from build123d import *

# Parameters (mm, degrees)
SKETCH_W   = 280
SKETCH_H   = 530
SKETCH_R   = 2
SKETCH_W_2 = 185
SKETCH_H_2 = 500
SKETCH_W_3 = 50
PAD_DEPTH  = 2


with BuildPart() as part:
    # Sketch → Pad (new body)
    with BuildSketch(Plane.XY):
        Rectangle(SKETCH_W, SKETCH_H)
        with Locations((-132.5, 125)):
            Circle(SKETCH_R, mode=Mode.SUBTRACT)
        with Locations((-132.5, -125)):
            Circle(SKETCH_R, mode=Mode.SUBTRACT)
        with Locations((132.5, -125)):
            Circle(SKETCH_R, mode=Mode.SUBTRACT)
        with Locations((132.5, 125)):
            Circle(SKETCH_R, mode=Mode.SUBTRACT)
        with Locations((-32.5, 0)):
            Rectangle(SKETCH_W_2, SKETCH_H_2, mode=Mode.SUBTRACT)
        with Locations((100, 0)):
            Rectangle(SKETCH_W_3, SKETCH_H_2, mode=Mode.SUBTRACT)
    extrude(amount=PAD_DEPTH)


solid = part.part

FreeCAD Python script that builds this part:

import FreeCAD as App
import Part
import Sketcher
from FreeCAD import Vector


def add_polygon(sketch, points):
    """Adds a closed chain of lines whose ends are joined by coincident constraints."""
    first, n = sketch.GeometryCount, len(points)
    for a, b in zip(points, points[1:] + points[:1]):
        sketch.addGeometry(Part.LineSegment(App.Vector(*a, 0), App.Vector(*b, 0)), False)
    for i in range(n):
        sketch.addConstraint(Sketcher.Constraint("Coincident", first + i, 2, first + (i + 1) % n, 1))

doc = App.newDocument("Part")
body = doc.addObject("PartDesign::Body", "Body")

# Sketch on XY plane
sketch1 = body.newObject("Sketcher::SketchObject", "Sketch")
sketch1.AttachmentSupport = (doc.getObject("XY_Plane"), [""])
sketch1.MapMode = "FlatFace"
add_polygon(sketch1, [(-140, 265), (-140, -265), (140, -265), (140, 265)])  # lines 0-3
sketch1.addGeometry(Part.Circle(Vector(-132.5, -125, 0), Vector(0, 0, 1), 2), False)  # 4
sketch1.addGeometry(Part.Circle(Vector(132.5, -125, 0), Vector(0, 0, 1), 2), False)  # 5
add_polygon(sketch1, [(60, -250), (-125, -250), (-125, 250), (60, 250)])  # lines 6-9
sketch1.addGeometry(Part.Circle(Vector(-132.5, 125, 0), Vector(0, 0, 1), 2), False)  # 10
add_polygon(sketch1, [(125, -250), (75, -250), (75, 250), (125, 250)])  # lines 11-14
sketch1.addGeometry(Part.Circle(Vector(132.5, 125, 0), Vector(0, 0, 1), 2), False)  # 15
sketch1.addConstraint(Sketcher.Constraint("Vertical", 0))
sketch1.addConstraint(Sketcher.Constraint("Horizontal", 1))
sketch1.addConstraint(Sketcher.Constraint("Vertical", 2))
sketch1.addConstraint(Sketcher.Constraint("Horizontal", 3))
sketch1.addConstraint(Sketcher.Constraint("Horizontal", 6))
sketch1.addConstraint(Sketcher.Constraint("Vertical", 7))
sketch1.addConstraint(Sketcher.Constraint("Horizontal", 8))
sketch1.addConstraint(Sketcher.Constraint("Vertical", 9))
sketch1.addConstraint(Sketcher.Constraint("Horizontal", 11))
sketch1.addConstraint(Sketcher.Constraint("Vertical", 12))
sketch1.addConstraint(Sketcher.Constraint("Horizontal", 13))
sketch1.addConstraint(Sketcher.Constraint("Vertical", 14))
sketch1.addConstraint(Sketcher.Constraint("Equal", 4, 5))
sketch1.addConstraint(Sketcher.Constraint("Equal", 5, 10))
sketch1.addConstraint(Sketcher.Constraint("Equal", 10, 15))
sketch1.addConstraint(Sketcher.Constraint("Symmetric", 5, 3, 10, 3, -1, 1))
sketch1.addConstraint(Sketcher.Constraint("Symmetric", 4, 3, 15, 3, -1, 1))
sketch1.addConstraint(Sketcher.Constraint("Symmetric", 0, 2, 2, 2, -1, 1))
sketch1.addConstraint(Sketcher.Constraint("Symmetric", 6, 2, 13, 2, -1, 1))
sketch1.addConstraint(Sketcher.Constraint("Symmetric", 4, 3, 5, 3, -2))
sketch1.addConstraint(Sketcher.Constraint("Horizontal", 9, 2, 11, 2))
sketch1.addConstraint(Sketcher.Constraint("Horizontal", 8, 2, 12, 2))
sketch1.addConstraint(Sketcher.Constraint("Diameter", 4, 4.0))
sketch1.addConstraint(Sketcher.Constraint("DistanceX", 1, 1, 1, 2, 280.0))
sketch1.addConstraint(Sketcher.Constraint("DistanceX", 6, 2, 6, 1, 185.0))
sketch1.addConstraint(Sketcher.Constraint("DistanceX", 11, 2, 11, 1, 50.0))
sketch1.addConstraint(Sketcher.Constraint("DistanceY", 0, 2, 0, 1, 530.0))
sketch1.addConstraint(Sketcher.Constraint("DistanceY", 7, 1, 7, 2, 500.0))
sketch1.addConstraint(Sketcher.Constraint("DistanceY", 4, 3, -1, 1, 125.0))
sketch1.addConstraint(Sketcher.Constraint("DistanceX", 6, 2, -1, 1, 125.0))
sketch1.addConstraint(Sketcher.Constraint("DistanceX", 4, 3, 5, 3, 265.0))
pad1 = body.newObject("PartDesign::Pad", "Pad")
pad1.Profile = sketch1
pad1.Length = 2

doc.recompute()
